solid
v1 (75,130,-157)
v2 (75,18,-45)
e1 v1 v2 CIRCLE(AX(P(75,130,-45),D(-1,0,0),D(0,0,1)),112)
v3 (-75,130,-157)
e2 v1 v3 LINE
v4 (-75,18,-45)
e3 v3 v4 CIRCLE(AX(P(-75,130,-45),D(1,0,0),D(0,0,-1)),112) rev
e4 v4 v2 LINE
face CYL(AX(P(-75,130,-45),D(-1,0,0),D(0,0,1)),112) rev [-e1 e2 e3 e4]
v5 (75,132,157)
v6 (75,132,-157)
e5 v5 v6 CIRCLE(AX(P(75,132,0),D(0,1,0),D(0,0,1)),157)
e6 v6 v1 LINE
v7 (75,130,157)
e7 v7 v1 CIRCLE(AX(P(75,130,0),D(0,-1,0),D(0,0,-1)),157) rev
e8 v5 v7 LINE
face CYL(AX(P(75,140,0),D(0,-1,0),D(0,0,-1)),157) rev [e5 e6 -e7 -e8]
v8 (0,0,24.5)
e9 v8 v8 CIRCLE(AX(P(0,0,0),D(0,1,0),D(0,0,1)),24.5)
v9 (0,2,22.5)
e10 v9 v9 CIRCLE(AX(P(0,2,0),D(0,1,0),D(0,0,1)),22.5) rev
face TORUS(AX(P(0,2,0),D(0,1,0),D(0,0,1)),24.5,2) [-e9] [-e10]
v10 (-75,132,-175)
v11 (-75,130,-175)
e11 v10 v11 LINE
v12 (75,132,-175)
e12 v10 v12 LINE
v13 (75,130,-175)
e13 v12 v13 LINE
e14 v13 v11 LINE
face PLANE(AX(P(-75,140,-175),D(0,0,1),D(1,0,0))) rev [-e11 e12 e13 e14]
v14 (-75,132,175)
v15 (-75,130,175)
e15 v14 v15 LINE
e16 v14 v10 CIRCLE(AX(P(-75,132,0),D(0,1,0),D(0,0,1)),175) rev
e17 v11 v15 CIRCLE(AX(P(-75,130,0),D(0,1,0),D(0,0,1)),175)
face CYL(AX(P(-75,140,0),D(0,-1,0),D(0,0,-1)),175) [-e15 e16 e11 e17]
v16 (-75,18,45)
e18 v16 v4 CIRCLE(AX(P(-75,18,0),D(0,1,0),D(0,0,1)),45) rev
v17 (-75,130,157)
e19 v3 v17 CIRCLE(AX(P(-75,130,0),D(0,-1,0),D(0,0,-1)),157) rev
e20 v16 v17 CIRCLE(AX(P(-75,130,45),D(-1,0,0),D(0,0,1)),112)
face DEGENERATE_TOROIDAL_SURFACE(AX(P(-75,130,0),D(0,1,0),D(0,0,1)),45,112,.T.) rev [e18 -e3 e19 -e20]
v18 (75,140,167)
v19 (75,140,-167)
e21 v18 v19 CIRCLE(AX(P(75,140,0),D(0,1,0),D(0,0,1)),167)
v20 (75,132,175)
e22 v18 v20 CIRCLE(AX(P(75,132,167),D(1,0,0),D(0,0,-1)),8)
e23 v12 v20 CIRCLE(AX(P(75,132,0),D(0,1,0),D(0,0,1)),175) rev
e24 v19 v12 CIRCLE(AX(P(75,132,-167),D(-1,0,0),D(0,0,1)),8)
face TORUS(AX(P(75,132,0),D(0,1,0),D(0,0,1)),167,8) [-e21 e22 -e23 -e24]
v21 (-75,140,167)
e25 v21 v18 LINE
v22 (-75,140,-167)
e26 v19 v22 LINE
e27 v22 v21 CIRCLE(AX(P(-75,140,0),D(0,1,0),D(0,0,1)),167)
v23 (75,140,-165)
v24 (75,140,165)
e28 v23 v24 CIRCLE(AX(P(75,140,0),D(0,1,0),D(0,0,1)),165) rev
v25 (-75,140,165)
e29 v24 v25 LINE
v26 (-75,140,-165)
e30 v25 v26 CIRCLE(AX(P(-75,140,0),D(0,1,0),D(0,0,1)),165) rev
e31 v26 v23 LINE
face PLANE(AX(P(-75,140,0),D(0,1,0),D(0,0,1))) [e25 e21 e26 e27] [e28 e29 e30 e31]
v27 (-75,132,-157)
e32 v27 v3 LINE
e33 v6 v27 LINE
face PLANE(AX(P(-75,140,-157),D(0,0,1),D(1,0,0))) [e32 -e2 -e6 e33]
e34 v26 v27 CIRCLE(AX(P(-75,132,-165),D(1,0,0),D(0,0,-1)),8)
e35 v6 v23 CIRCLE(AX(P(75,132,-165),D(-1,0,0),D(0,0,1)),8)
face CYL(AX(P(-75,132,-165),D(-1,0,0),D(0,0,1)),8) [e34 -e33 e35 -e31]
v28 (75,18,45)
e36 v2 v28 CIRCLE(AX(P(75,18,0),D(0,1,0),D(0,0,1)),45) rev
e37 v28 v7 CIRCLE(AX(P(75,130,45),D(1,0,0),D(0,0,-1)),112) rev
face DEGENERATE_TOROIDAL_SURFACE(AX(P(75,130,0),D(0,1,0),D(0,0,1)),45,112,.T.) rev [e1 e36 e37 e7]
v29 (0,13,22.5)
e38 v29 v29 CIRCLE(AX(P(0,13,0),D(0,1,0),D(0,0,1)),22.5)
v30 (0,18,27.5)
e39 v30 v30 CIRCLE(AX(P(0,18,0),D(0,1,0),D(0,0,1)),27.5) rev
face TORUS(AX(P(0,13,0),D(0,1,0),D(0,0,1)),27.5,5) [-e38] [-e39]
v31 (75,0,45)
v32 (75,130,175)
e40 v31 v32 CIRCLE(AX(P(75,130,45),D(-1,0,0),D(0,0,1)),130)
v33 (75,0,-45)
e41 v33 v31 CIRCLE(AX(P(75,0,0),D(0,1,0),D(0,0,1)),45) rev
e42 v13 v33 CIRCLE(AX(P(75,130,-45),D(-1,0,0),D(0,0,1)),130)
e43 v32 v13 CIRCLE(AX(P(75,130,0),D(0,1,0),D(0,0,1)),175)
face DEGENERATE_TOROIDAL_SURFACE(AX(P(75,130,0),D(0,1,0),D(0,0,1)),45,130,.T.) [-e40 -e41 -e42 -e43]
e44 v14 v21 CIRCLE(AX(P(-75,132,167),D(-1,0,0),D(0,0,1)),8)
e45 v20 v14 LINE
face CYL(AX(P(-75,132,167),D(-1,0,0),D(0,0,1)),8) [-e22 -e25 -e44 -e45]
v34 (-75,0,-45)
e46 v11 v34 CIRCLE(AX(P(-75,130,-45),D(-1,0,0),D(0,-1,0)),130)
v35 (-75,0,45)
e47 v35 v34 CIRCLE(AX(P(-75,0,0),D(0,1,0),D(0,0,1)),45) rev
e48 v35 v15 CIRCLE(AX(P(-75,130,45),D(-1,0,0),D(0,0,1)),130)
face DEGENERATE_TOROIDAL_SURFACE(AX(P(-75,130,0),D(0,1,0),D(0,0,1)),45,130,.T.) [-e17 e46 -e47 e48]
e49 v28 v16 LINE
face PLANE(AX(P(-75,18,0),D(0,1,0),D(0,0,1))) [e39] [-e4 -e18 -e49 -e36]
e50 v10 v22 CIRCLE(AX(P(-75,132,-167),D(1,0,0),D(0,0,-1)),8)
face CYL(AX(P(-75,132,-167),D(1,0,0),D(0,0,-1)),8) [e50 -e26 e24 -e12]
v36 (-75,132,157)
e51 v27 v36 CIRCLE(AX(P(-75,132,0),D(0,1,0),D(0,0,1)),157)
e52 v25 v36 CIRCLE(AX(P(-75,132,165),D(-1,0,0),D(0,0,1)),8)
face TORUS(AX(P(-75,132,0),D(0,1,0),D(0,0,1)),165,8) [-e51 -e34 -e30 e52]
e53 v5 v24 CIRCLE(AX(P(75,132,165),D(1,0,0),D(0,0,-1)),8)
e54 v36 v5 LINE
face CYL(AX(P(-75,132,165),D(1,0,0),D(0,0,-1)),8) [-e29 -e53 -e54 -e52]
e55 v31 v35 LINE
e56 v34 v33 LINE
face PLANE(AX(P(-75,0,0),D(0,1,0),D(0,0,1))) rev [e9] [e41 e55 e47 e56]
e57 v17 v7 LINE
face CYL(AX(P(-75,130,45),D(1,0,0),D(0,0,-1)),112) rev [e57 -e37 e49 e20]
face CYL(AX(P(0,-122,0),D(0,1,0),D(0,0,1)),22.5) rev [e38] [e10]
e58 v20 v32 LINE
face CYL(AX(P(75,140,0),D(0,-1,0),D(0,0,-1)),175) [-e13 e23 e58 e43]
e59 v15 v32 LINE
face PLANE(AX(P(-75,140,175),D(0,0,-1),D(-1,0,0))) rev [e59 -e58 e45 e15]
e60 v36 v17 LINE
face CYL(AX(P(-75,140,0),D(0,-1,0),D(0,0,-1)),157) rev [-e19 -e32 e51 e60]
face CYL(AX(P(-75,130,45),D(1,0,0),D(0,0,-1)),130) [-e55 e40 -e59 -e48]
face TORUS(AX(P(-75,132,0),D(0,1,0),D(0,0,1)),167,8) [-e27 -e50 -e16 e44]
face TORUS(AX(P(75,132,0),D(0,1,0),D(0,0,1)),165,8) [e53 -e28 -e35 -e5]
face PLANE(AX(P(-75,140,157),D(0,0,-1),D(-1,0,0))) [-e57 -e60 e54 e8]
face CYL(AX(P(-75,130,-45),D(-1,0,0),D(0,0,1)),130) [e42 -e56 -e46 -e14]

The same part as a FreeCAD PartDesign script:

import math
import FreeCAD as App
import Part
import Sketcher

V = App.Vector
Q = App.Units.Quantity


def edges_at(feature, points):
    """Names of the edges that pass closest to the given points."""
    edges = feature.Shape.Edges
    near = lambda p: min(range(len(edges)), key=lambda i: edges[i].distToShape(Part.Vertex(*p))[0])
    return sorted({f"Edge{near(p) + 1}" for p in points})


def faces_at(feature, points):
    """Names of the faces that lie closest to the given points."""
    faces = feature.Shape.Faces
    near = lambda p: min(range(len(faces)), key=lambda i: faces[i].distToShape(Part.Vertex(*p))[0])
    return sorted({f"Face{near(p) + 1}" for p in points})

doc = App.newDocument("Part")
body = doc.addObject("PartDesign::Body", "Body")

# Sketch on XZ plane
sketch1 = doc.addObject("Sketcher::SketchObject", "Sketch")
body.addObject(sketch1)
sketch1.AttachmentSupport = (doc.XZ_Plane, [""])
sketch1.MapMode = "FlatFace"
sketch1.addGeometry([
    Part.LineSegment(V(75, -175, 0), V(-75, -175, 0)),
    Part.ArcOfCircle(Part.Circle(V(-75, 0, 0), V(0, 0, 1), 175), math.radians(90), math.radians(270)),
    Part.LineSegment(V(-75, 175, 0), V(75, 175, 0)),
    Part.ArcOfCircle(Part.Circle(V(75, 0, 0), V(0, 0, 1), 175), math.radians(-90), math.radians(90)),
], False)
sketch1.addConstraint([
    Sketcher.Constraint("Tangent", 0, 2, 1, 2),
    Sketcher.Constraint("Tangent", 1, 1, 2, 1),
    Sketcher.Constraint("Tangent", 2, 2, 3, 2),
    Sketcher.Constraint("Tangent", 3, 1, 0, 1),
    Sketcher.Constraint("Horizontal", 0),
    Sketcher.Constraint("Horizontal", 2),
    Sketcher.Constraint("Symmetric", 1, 3, 3, 3, -1, 1),
    Sketcher.Constraint("Radius", 1, Q("175 mm")),
    Sketcher.Constraint("DistanceX", 0, 2, 0, 1, Q("150 mm")),
])
pad1 = doc.addObject("PartDesign::Pad", "Pad")
body.addObject(pad1)
pad1.Profile = sketch1
pad1.Length = 140
pad1.Reversed = True
doc.recompute()

fillet = doc.addObject("PartDesign::Fillet", "Fillet")
body.addObject(fillet)
fillet.Base = (pad1, edges_at(pad1, [
    (0, 0, -175),
    (250, 0, 0),
    (0, 0, 175),
    (-250, 0, 0),
]))
fillet.Radius = 130
doc.recompute()

thickness = doc.addObject("PartDesign::Thickness", "Thickness")
body.addObject(thickness)
thickness.Base = (fillet, faces_at(fillet, [(0, 140, 0)]))
thickness.Value = 18
thickness.Reversed = True
thickness.Join = "Intersection"

# Sketch on XZ plane
sketch2 = doc.addObject("Sketcher::SketchObject", "Sketch001")
body.addObject(sketch2)
sketch2.AttachmentSupport = (doc.XZ_Plane, [""])
sketch2.MapMode = "FlatFace"
sketch2.AttachmentOffset = App.Placement(V(0, 0, -18), App.Rotation())
sketch2.addGeometry(Part.Circle(V(0, 0, 0), V(0, 0, 1), 22.5), False)
sketch2.addConstraint([
    Sketcher.Constraint("Coincident", 0, 3, -1, 1),
    Sketcher.Constraint("Diameter", 0, Q("45 mm")),
])
pocket1 = doc.addObject("PartDesign::Pocket", "Pocket")
body.addObject(pocket1)
pocket1.Profile = sketch2
pocket1.Length = 140
pocket1.Reversed = True
doc.recompute()

fillet2 = doc.addObject("PartDesign::Fillet", "Fillet001")
body.addObject(fillet2)
fillet2.Base = (pocket1, edges_at(pocket1, [(0, 18, -22.5)]))
fillet2.Radius = 5
doc.recompute()

fillet3 = doc.addObject("PartDesign::Fillet", "Fillet002")
body.addObject(fillet3)
fillet3.Base = (fillet2, edges_at(fillet2, [(0, 0, -22.5)]))
fillet3.Radius = 2
doc.recompute()

fillet4 = doc.addObject("PartDesign::Fillet", "Fillet003")
body.addObject(fillet4)
fillet4.Base = (fillet3, edges_at(fillet3, [
    (250, 140, 0),
    (0, 140, -175),
    (-232, 140, 0),
    (0, 140, 157),
    (232, 140, 0),
    (0, 140, -157),
    (-250, 140, 0),
    (0, 140, 175),
]))
fillet4.Radius = 8

doc.recompute()
